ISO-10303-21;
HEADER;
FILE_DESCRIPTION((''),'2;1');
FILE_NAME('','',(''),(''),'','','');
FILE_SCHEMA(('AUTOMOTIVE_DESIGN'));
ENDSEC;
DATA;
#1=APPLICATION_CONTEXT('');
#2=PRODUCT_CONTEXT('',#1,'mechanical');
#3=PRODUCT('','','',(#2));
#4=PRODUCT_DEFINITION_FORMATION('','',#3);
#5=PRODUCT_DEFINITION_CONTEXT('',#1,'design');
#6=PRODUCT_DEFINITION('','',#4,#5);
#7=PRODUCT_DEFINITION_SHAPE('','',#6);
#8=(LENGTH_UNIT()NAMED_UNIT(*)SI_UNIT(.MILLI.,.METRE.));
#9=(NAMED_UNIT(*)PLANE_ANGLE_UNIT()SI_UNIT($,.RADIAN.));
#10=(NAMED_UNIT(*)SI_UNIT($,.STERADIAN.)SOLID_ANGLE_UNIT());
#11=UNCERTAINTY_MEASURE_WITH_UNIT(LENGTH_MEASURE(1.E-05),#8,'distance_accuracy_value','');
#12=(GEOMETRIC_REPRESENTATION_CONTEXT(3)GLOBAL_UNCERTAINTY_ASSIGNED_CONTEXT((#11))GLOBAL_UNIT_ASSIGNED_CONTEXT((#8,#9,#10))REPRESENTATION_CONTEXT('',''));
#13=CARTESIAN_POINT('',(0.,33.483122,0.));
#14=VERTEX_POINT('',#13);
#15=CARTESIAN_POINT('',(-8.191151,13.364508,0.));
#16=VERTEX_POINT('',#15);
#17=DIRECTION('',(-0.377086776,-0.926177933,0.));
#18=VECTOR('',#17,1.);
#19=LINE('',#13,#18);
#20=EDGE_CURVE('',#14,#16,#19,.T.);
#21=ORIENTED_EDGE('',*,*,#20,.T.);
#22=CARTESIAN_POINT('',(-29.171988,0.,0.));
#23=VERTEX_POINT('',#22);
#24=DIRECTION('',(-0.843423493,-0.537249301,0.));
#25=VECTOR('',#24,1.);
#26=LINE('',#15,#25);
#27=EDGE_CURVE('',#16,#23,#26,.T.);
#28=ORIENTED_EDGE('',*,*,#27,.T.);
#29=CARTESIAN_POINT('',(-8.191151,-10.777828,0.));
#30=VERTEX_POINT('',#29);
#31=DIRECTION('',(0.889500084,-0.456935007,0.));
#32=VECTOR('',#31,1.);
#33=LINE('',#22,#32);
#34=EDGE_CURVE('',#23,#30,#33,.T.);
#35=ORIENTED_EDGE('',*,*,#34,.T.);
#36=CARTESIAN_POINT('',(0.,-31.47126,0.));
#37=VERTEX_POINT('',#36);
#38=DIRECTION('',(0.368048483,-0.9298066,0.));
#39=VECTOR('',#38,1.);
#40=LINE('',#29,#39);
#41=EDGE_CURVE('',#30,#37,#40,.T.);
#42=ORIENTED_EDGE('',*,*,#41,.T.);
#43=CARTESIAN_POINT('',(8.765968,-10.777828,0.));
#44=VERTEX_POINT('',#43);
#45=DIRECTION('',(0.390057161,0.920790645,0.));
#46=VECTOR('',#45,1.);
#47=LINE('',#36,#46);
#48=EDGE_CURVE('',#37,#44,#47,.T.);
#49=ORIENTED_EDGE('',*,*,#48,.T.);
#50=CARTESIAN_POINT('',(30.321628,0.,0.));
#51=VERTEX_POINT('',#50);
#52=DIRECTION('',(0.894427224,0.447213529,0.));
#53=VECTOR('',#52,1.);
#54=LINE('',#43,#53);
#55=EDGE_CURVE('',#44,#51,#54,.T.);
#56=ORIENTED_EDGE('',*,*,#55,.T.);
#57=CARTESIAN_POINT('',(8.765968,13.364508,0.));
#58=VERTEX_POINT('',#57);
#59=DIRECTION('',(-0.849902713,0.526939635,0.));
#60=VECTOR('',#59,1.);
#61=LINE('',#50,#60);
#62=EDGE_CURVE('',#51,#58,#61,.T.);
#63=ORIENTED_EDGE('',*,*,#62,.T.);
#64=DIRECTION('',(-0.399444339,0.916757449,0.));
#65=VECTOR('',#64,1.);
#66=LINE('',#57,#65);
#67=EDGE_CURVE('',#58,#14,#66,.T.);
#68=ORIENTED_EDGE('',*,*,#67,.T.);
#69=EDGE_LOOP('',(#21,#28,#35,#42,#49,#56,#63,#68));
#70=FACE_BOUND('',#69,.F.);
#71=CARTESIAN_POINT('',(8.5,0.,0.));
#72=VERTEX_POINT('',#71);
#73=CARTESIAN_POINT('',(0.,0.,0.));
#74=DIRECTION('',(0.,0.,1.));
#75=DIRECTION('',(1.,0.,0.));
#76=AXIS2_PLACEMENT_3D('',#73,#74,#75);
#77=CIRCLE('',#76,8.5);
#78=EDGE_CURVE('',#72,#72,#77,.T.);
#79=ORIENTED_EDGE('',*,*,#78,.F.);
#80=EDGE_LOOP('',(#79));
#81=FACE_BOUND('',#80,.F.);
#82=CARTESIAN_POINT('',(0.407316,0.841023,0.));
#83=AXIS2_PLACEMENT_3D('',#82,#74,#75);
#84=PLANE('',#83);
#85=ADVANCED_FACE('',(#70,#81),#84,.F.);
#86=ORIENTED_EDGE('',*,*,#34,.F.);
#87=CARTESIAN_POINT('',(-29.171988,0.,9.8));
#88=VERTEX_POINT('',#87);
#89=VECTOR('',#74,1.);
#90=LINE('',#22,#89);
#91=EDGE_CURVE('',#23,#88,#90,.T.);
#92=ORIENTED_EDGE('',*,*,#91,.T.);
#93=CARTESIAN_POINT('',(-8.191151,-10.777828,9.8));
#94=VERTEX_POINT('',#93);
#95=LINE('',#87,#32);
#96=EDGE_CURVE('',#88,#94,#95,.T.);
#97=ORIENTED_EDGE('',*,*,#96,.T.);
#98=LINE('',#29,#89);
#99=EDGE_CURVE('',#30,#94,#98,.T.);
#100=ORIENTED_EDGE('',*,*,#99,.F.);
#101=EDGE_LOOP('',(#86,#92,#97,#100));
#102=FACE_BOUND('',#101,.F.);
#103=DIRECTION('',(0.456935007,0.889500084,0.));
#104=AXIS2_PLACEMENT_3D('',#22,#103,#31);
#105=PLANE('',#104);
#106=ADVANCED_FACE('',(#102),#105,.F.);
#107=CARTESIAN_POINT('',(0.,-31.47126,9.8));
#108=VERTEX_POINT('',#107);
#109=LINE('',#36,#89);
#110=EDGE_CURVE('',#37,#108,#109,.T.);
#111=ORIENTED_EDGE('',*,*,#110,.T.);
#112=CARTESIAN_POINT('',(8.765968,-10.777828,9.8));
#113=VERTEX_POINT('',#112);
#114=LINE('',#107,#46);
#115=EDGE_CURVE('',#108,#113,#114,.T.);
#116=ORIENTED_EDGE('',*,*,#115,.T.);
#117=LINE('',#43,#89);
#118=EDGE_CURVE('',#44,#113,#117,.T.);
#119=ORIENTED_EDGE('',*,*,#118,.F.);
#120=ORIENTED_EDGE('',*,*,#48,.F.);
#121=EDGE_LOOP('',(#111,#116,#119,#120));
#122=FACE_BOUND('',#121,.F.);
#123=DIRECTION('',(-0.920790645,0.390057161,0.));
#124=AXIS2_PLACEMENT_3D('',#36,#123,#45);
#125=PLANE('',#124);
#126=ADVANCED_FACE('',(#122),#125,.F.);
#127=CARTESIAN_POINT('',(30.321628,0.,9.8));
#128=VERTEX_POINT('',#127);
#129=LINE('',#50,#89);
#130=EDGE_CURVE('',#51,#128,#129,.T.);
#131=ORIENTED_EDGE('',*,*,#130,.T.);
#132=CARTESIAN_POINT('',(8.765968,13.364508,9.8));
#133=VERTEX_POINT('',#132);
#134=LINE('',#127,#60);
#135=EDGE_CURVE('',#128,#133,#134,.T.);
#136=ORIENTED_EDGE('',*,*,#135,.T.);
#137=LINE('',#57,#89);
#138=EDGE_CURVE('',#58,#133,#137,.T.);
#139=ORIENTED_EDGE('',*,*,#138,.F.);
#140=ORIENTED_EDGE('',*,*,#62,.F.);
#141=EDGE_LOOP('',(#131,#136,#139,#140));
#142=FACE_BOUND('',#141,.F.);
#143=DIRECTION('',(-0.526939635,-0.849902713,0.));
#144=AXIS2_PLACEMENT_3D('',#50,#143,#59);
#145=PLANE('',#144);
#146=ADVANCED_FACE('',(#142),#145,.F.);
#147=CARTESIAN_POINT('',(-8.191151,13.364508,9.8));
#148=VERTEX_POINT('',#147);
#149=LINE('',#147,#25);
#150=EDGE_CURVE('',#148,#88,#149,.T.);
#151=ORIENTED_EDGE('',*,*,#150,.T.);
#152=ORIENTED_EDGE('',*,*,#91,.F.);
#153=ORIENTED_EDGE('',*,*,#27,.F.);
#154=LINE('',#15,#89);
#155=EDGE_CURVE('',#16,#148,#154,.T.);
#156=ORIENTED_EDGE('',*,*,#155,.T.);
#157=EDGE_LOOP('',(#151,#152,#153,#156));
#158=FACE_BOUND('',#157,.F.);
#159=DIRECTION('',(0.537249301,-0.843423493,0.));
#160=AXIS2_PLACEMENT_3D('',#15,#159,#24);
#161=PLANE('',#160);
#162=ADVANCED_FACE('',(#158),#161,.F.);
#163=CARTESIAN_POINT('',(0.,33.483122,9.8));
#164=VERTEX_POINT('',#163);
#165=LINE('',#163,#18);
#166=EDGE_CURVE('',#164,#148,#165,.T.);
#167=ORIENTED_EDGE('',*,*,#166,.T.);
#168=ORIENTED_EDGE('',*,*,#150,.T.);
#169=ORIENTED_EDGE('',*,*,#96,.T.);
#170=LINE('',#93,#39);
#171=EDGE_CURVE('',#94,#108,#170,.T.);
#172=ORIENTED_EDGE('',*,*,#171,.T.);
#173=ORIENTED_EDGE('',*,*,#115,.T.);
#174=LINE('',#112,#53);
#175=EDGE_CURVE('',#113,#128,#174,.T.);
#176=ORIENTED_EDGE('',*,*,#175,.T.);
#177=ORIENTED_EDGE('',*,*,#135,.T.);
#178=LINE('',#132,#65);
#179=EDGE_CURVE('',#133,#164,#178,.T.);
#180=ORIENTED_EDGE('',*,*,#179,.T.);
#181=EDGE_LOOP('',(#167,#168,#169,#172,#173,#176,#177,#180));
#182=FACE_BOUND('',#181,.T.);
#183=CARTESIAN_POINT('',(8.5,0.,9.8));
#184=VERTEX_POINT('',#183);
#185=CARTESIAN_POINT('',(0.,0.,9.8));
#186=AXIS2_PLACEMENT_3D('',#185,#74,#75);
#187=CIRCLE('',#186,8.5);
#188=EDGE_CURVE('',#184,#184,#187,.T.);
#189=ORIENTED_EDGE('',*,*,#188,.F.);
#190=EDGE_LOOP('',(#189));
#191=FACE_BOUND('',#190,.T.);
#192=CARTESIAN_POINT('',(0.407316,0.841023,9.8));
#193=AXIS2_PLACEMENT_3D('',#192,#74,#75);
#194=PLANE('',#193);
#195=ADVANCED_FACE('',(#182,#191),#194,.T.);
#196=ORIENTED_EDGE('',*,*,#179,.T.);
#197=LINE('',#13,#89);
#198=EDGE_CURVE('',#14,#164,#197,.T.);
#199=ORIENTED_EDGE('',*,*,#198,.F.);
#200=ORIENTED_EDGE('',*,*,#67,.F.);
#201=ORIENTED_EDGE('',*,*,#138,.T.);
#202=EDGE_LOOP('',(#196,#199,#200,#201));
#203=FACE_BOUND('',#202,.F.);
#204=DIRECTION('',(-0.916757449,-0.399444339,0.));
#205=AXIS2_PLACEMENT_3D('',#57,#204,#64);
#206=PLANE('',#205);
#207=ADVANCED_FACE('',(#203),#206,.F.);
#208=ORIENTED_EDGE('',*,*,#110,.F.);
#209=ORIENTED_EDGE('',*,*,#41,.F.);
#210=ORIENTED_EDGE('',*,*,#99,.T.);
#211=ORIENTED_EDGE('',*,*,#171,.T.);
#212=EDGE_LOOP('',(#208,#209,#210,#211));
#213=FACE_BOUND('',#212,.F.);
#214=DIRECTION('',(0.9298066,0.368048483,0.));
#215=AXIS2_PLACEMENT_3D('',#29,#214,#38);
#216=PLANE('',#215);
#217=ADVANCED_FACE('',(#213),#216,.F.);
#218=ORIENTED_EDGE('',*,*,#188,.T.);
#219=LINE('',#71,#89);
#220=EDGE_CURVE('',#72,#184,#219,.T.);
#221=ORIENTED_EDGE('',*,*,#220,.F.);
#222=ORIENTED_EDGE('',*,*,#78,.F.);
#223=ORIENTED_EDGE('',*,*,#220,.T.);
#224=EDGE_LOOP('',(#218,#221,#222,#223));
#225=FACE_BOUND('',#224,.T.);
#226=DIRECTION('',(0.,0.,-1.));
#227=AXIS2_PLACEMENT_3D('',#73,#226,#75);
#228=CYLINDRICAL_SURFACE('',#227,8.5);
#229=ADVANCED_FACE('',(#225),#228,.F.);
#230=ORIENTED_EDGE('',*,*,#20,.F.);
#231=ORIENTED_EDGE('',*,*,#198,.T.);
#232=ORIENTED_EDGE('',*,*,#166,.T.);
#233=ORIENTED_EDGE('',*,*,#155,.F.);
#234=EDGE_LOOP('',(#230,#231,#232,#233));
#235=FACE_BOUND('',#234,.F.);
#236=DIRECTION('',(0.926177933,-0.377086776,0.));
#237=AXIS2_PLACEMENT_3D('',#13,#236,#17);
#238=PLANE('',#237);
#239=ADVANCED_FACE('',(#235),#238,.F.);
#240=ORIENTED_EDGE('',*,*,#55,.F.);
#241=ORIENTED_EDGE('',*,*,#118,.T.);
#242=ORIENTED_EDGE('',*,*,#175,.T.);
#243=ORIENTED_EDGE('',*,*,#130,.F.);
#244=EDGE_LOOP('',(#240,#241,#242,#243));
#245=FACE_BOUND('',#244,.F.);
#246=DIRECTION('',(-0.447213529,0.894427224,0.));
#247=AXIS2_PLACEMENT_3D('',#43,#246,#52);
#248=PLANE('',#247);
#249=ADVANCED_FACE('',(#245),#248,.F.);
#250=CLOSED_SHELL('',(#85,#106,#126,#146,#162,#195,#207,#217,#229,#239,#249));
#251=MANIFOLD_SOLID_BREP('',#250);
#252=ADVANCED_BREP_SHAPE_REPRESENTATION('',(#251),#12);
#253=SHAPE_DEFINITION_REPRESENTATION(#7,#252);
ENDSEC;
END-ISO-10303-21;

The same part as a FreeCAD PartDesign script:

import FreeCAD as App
import Part
import Sketcher

doc = App.newDocument("Part")
body = doc.addObject("PartDesign::Body", "Body")

# Sketch on XY plane
sketch1 = body.newObject("Sketcher::SketchObject", "Sketch")
sketch1.AttachmentSupport = (doc.getObject("XY_Plane"), [""])
sketch1.MapMode = "FlatFace"
sketch1.addGeometry([
    Part.LineSegment(App.Vector(30, 0, 0), App.Vector(9, 13, 0)),  # 0
    Part.LineSegment(App.Vector(9, 13, 0), App.Vector(0, 33, 0)),  # 1
    Part.LineSegment(App.Vector(0, 33, 0), App.Vector(-8, 13, 0)),  # 2
    Part.LineSegment(App.Vector(-8, 13, 0), App.Vector(-29, 0, 0)),  # 3
    Part.LineSegment(App.Vector(-29, 0, 0), App.Vector(-8, -11, 0)),  # 4
    Part.LineSegment(App.Vector(-8, -11, 0), App.Vector(0, -31, 0)),  # 5
    Part.LineSegment(App.Vector(0, -31, 0), App.Vector(9, -11, 0)),  # 6
    Part.LineSegment(App.Vector(9, -11, 0), App.Vector(30, 0, 0)),  # 7
    Part.Circle(App.Vector(0, 0, 0), App.Vector(0, 0, 1), 8),  # 8
], False)
sketch1.addConstraint([
    Sketcher.Constraint("Coincident", 0, 2, 1, 1),
    Sketcher.Constraint("Coincident", 1, 2, 2, 1),
    Sketcher.Constraint("Coincident", 2, 2, 3, 1),
    Sketcher.Constraint("Coincident", 3, 2, 4, 1),
    Sketcher.Constraint("Coincident", 4, 2, 5, 1),
    Sketcher.Constraint("Coincident", 5, 2, 6, 1),
    Sketcher.Constraint("Coincident", 6, 2, 7, 1),
    Sketcher.Constraint("Coincident", 7, 2, 0, 1),
    Sketcher.Constraint("Coincident", 8, 3, -1, 1),
    Sketcher.Constraint("PointOnObject", 1, 2, -2),
    Sketcher.Constraint("PointOnObject", 3, 2, -1),
    Sketcher.Constraint("PointOnObject", 5, 2, -2),
    Sketcher.Constraint("PointOnObject", 7, 2, -1),
    Sketcher.Constraint("Horizontal", 0, 2, 2, 2),
    Sketcher.Constraint("Horizontal", 4, 2, 6, 2),
    Sketcher.Constraint("Vertical", 2, 2, 4, 2),
    Sketcher.Constraint("Vertical", 0, 2, 6, 2),
    Sketcher.Constraint("Diameter", 8, 17.0),
    Sketcher.Constraint("Distance", 2, 21.722191),
    Sketcher.Constraint("Distance", 5, 22.25563),
    Sketcher.Constraint("Distance", 7, 24.09996),
    Sketcher.Constraint("DistanceX", -1, 1, 0, 2, 8.765968),
    Sketcher.Constraint("DistanceY", -1, 1, 0, 2, 13.364508),
    Sketcher.Constraint("DistanceX", 2, 2, -1, 1, 8.191151),
    Sketcher.Constraint("DistanceY", 5, 2, -1, 1, 31.47126),
    Sketcher.Constraint("Distance", 3, 24.875803),
])
pad1 = body.newObject("PartDesign::Pad", "Pad")
pad1.Profile = sketch1
pad1.Length = 9.8

doc.recompute()
